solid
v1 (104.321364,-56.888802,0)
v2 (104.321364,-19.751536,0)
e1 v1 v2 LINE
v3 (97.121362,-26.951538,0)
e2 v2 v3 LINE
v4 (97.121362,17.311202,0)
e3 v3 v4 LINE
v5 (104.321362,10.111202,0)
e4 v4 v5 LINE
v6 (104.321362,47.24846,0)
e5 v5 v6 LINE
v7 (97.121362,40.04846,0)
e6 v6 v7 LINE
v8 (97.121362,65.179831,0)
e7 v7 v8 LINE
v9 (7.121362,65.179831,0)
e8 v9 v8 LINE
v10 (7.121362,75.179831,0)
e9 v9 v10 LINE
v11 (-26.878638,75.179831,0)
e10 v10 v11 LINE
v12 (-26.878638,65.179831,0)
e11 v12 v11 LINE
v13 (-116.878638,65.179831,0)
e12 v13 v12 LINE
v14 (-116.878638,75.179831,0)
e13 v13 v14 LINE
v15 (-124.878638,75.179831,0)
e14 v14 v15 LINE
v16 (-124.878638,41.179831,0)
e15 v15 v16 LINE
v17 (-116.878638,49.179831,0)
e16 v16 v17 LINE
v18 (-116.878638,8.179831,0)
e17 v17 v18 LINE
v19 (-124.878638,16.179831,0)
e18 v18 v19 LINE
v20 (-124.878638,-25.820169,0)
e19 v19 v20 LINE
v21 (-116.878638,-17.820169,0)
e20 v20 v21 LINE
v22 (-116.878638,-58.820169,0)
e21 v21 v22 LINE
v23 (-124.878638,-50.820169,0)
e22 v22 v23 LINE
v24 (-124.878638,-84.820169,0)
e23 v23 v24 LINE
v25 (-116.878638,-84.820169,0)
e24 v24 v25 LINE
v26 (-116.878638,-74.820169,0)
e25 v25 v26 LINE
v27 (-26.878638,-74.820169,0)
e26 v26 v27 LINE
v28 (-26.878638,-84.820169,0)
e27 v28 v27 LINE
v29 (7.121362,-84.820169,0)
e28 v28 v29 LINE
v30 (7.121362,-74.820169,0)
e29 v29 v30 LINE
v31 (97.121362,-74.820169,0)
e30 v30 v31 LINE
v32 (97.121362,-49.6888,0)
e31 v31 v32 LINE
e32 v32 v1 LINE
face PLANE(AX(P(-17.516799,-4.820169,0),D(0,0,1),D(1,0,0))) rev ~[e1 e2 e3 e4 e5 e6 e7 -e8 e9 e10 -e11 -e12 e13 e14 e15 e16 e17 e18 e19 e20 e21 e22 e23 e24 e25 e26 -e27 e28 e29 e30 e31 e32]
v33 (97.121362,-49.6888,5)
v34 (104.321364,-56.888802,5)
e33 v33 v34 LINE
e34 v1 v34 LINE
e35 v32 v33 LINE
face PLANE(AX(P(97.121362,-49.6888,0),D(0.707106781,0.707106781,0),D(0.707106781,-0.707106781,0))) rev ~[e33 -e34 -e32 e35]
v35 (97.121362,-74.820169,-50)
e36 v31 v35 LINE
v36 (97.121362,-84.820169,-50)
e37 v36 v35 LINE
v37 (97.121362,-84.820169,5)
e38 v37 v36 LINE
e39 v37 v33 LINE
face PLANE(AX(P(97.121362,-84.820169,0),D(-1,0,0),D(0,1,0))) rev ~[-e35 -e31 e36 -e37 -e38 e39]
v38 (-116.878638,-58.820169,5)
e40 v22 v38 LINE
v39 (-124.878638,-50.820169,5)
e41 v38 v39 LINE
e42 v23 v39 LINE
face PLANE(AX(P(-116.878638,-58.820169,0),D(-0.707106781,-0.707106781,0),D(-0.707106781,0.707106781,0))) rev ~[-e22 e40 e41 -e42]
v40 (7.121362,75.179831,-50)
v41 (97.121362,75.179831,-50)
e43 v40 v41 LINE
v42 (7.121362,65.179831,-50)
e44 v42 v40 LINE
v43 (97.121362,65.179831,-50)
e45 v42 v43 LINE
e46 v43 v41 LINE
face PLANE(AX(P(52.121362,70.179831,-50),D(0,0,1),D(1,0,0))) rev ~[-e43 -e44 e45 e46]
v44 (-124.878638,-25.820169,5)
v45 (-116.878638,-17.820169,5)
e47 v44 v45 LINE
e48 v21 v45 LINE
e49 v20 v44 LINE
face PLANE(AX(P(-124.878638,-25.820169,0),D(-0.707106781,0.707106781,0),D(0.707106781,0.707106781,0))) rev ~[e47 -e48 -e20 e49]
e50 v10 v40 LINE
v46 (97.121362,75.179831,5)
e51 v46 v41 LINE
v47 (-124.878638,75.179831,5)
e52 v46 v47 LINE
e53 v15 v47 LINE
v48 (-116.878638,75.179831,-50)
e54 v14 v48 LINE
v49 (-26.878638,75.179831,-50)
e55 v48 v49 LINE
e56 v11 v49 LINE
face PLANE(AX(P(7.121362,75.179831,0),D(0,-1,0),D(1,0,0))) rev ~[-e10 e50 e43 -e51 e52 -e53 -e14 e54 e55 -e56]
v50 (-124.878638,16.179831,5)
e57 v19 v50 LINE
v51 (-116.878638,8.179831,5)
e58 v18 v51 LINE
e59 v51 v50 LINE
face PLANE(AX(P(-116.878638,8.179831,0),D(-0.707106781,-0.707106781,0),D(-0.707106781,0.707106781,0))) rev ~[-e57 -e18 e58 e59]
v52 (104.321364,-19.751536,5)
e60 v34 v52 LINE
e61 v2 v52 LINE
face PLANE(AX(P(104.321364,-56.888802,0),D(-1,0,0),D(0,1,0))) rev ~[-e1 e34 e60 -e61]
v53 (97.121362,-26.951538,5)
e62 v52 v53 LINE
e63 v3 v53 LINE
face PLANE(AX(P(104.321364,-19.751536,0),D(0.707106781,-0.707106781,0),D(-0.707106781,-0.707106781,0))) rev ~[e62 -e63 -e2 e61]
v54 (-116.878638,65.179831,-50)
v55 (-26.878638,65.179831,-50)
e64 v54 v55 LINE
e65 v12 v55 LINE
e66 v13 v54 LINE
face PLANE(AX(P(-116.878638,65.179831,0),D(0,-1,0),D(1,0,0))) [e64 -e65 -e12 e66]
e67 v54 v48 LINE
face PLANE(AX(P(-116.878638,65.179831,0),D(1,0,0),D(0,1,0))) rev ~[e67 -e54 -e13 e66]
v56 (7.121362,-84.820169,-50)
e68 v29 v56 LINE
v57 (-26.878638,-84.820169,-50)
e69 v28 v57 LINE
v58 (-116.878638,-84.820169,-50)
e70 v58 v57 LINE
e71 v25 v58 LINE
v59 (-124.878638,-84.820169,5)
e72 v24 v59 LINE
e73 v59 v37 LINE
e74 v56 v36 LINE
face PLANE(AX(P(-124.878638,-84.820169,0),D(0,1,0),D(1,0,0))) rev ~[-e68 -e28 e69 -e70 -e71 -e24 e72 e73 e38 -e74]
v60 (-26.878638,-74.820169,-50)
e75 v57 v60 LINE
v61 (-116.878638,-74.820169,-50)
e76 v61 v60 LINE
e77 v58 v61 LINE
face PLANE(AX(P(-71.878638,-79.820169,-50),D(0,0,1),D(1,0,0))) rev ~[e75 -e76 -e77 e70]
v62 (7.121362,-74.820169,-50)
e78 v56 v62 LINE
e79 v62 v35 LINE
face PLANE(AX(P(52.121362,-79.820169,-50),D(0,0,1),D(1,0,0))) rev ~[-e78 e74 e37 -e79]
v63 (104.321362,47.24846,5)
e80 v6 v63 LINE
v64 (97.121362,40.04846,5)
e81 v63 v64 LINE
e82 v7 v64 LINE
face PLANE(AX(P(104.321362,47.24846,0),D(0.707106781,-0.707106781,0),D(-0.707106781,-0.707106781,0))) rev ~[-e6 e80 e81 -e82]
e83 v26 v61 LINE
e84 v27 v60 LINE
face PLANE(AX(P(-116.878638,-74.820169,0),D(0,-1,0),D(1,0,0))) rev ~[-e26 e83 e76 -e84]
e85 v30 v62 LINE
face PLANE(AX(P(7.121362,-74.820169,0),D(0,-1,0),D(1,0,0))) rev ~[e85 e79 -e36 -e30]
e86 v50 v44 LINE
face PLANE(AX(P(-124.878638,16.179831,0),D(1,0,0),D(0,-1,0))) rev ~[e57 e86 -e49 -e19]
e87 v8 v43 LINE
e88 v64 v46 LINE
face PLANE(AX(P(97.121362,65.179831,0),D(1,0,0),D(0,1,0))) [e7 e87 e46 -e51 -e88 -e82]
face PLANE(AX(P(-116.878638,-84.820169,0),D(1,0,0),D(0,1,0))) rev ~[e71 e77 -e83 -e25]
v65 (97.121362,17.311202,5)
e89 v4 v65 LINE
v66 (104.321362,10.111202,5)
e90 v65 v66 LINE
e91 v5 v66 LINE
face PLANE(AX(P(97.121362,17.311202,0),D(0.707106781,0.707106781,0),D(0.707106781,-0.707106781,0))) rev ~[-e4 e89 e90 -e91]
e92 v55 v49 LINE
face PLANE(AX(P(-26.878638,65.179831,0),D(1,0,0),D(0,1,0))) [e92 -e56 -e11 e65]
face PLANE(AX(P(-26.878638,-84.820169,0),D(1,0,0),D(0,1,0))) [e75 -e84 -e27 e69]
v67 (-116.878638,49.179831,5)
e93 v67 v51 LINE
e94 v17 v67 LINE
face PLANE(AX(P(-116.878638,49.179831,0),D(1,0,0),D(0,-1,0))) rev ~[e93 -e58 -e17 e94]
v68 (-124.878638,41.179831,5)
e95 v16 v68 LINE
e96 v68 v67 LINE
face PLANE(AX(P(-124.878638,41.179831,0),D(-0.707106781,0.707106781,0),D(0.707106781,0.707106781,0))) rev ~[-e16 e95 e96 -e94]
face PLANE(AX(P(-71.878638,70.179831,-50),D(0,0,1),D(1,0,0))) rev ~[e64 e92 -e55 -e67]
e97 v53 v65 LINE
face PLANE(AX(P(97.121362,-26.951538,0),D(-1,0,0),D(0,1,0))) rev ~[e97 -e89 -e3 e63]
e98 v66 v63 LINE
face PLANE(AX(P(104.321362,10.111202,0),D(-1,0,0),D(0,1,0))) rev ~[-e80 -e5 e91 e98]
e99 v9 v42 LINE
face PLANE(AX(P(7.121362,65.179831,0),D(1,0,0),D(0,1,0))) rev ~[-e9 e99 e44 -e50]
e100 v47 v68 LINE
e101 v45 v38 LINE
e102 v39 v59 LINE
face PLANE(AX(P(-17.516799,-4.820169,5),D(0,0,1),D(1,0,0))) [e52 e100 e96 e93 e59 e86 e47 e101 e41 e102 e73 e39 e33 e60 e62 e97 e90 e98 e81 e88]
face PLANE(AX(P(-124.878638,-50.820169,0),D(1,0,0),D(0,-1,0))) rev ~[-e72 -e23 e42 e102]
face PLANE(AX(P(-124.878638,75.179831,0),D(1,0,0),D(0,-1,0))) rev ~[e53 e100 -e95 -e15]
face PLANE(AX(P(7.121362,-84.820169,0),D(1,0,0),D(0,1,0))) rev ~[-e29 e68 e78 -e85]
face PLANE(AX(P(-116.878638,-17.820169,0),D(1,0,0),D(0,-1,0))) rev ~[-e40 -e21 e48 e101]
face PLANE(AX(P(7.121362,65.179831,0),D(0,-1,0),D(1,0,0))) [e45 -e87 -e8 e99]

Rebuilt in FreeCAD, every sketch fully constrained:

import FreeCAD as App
import Part
import Sketcher
from FreeCAD import Vector
Q = App.Units.Quantity

doc = App.newDocument("Part")
body = doc.addObject("PartDesign::Body", "Body")

# Sketch on XY plane
sketch1 = doc.addObject("Sketcher::SketchObject", "Sketch")
body.addObject(sketch1)
sketch1.AttachmentSupport = (doc.XY_Plane, [""])
sketch1.MapMode = "FlatFace"
sketch1.addGeometry([
    Part.LineSegment(Vector(-125, 75, 0), Vector(-125, 41, 0)),  # 0
    Part.LineSegment(Vector(-125, 41, 0), Vector(-117, 49, 0)),  # 1
    Part.LineSegment(Vector(-117, 49, 0), Vector(-117, 8, 0)),  # 2
    Part.LineSegment(Vector(-117, 8, 0), Vector(-125, 16, 0)),  # 3
    Part.LineSegment(Vector(-125, 16, 0), Vector(-125, -26, 0)),  # 4
    Part.LineSegment(Vector(-125, -26, 0), Vector(-117, -18, 0)),  # 5
    Part.LineSegment(Vector(-117, -18, 0), Vector(-117, -59, 0)),  # 6
    Part.LineSegment(Vector(-117, -59, 0), Vector(-125, -51, 0)),  # 7
    Part.LineSegment(Vector(-125, -51, 0), Vector(-125, -85, 0)),  # 8
    Part.LineSegment(Vector(-125, -85, 0), Vector(97, -85, 0)),  # 9
    Part.LineSegment(Vector(97, -85, 0), Vector(97, -50, 0)),  # 10
    Part.LineSegment(Vector(97, -50, 0), Vector(104, -57, 0)),  # 11
    Part.LineSegment(Vector(104, -57, 0), Vector(104, -20, 0)),  # 12
    Part.LineSegment(Vector(104, -20, 0), Vector(97, -27, 0)),  # 13
    Part.LineSegment(Vector(97, -27, 0), Vector(97, 17, 0)),  # 14
    Part.LineSegment(Vector(97, 17, 0), Vector(104, 10, 0)),  # 15
    Part.LineSegment(Vector(104, 10, 0), Vector(104, 47, 0)),  # 16
    Part.LineSegment(Vector(104, 47, 0), Vector(97, 40, 0)),  # 17
    Part.LineSegment(Vector(97, 40, 0), Vector(97, 75, 0)),  # 18
    Part.LineSegment(Vector(97, 75, 0), Vector(-125, 75, 0)),  # 19
], False)
sketch1.addConstraint([
    Sketcher.Constraint("Coincident", 0, 2, 1, 1),
    Sketcher.Constraint("Coincident", 1, 2, 2, 1),
    Sketcher.Constraint("Coincident", 2, 2, 3, 1),
    Sketcher.Constraint("Coincident", 3, 2, 4, 1),
    Sketcher.Constraint("Coincident", 4, 2, 5, 1),
    Sketcher.Constraint("Coincident", 5, 2, 6, 1),
    Sketcher.Constraint("Coincident", 6, 2, 7, 1),
    Sketcher.Constraint("Coincident", 7, 2, 8, 1),
    Sketcher.Constraint("Coincident", 8, 2, 9, 1),
    Sketcher.Constraint("Coincident", 9, 2, 10, 1),
    Sketcher.Constraint("Coincident", 10, 2, 11, 1),
    Sketcher.Constraint("Coincident", 11, 2, 12, 1),
    Sketcher.Constraint("Coincident", 12, 2, 13, 1),
    Sketcher.Constraint("Coincident", 13, 2, 14, 1),
    Sketcher.Constraint("Coincident", 14, 2, 15, 1),
    Sketcher.Constraint("Coincident", 15, 2, 16, 1),
    Sketcher.Constraint("Coincident", 16, 2, 17, 1),
    Sketcher.Constraint("Coincident", 17, 2, 18, 1),
    Sketcher.Constraint("Coincident", 18, 2, 19, 1),
    Sketcher.Constraint("Coincident", 19, 2, 0, 1),
    Sketcher.Constraint("Vertical", 0),
    Sketcher.Constraint("Vertical", 2),
    Sketcher.Constraint("Vertical", 4),
    Sketcher.Constraint("Vertical", 6),
    Sketcher.Constraint("Vertical", 8),
    Sketcher.Constraint("Horizontal", 9),
    Sketcher.Constraint("Vertical", 10),
    Sketcher.Constraint("Vertical", 12),
    Sketcher.Constraint("Vertical", 14),
    Sketcher.Constraint("Vertical", 16),
    Sketcher.Constraint("Vertical", 18),
    Sketcher.Constraint("Horizontal", 19),
    Sketcher.Constraint("Perpendicular", 1, 3),
    Sketcher.Constraint("Perpendicular", 3, 5),
    Sketcher.Constraint("Perpendicular", 5, 7),
    Sketcher.Constraint("Parallel", 7, 11),
    Sketcher.Constraint("Perpendicular", 11, 13),
    Sketcher.Constraint("Perpendicular", 13, 15),
    Sketcher.Constraint("Perpendicular", 15, 17),
    Sketcher.Constraint("Vertical", 0, 2, 3, 2),
    Sketcher.Constraint("Vertical", 2, 2, 5, 2),
    Sketcher.Constraint("Vertical", 4, 2, 7, 2),
    Sketcher.Constraint("Vertical", 10, 2, 13, 2),
    Sketcher.Constraint("Vertical", 14, 2, 17, 2),
    Sketcher.Constraint("Equal", 2, 6),
    Sketcher.Constraint("Equal", 0, 8),
    Sketcher.Constraint("Equal", 10, 18),
    Sketcher.Constraint("Equal", 1, 3),
    Sketcher.Constraint("DistanceX", 9, 1, 9, 2, Q("222 mm")),
    Sketcher.Constraint("DistanceY", 0, 2, 0, 1, Q("34 mm")),
    Sketcher.Constraint("DistanceY", 2, 2, 2, 1, Q("41 mm")),
    Sketcher.Constraint("DistanceY", 4, 2, 4, 1, Q("42 mm")),
    Sketcher.Constraint("DistanceX", 0, 2, 1, 2, Q("8 mm")),
    Sketcher.Constraint("DistanceY", 10, 2, 14, 2, Q("67.000002 mm")),
    Sketcher.Constraint("DistanceY", 13, 2, 17, 2, Q("66.999998 mm")),
    Sketcher.Constraint("DistanceX", 10, 2, 11, 2, Q("7.200002 mm")),
    Sketcher.Constraint("DistanceX", 14, 2, 15, 2, Q("7.2 mm")),
    Sketcher.Constraint("DistanceY", 10, 1, 10, 2, Q("35.131369 mm")),
    Sketcher.Constraint("DistanceY", 10, 2, -1, 1, Q("49.6888 mm")),
    Sketcher.Constraint("DistanceX", -1, 1, 15, 2, Q("104.321362 mm")),
])
pad1 = doc.addObject("PartDesign::Pad", "Pad")
body.addObject(pad1)
pad1.Profile = sketch1
pad1.Length = 5

# Sketch on XY plane
sketch2 = doc.addObject("Sketcher::SketchObject", "Sketch001")
body.addObject(sketch2)
sketch2.AttachmentSupport = (doc.XY_Plane, [""])
sketch2.MapMode = "FlatFace"
sketch2.addGeometry([
    Part.LineSegment(Vector(7, 75, 0), Vector(7, 65, 0)),  # 0
    Part.LineSegment(Vector(7, 65, 0), Vector(97, 65, 0)),  # 1
    Part.LineSegment(Vector(97, 65, 0), Vector(97, 75, 0)),  # 2
    Part.LineSegment(Vector(97, 75, 0), Vector(7, 75, 0)),  # 3
    Part.LineSegment(Vector(-117, 75, 0), Vector(-117, 65, 0)),  # 4
    Part.LineSegment(Vector(-117, 65, 0), Vector(-27, 65, 0)),  # 5
    Part.LineSegment(Vector(-27, 65, 0), Vector(-27, 75, 0)),  # 6
    Part.LineSegment(Vector(-27, 75, 0), Vector(-117, 75, 0)),  # 7
    Part.LineSegment(Vector(-117, -75, 0), Vector(-117, -85, 0)),  # 8
    Part.LineSegment(Vector(-117, -85, 0), Vector(-27, -85, 0)),  # 9
    Part.LineSegment(Vector(-27, -85, 0), Vector(-27, -75, 0)),  # 10
    Part.LineSegment(Vector(-27, -75, 0), Vector(-117, -75, 0)),  # 11
    Part.LineSegment(Vector(7, -75, 0), Vector(7, -85, 0)),  # 12
    Part.LineSegment(Vector(7, -85, 0), Vector(97, -85, 0)),  # 13
    Part.LineSegment(Vector(97, -85, 0), Vector(97, -75, 0)),  # 14
    Part.LineSegment(Vector(97, -75, 0), Vector(7, -75, 0)),  # 15
], False)
sketch2.addConstraint([
    Sketcher.Constraint("Coincident", 0, 2, 1, 1),
    Sketcher.Constraint("Coincident", 1, 2, 2, 1),
    Sketcher.Constraint("Coincident", 2, 2, 3, 1),
    Sketcher.Constraint("Coincident", 3, 2, 0, 1),
    Sketcher.Constraint("Coincident", 4, 2, 5, 1),
    Sketcher.Constraint("Coincident", 5, 2, 6, 1),
    Sketcher.Constraint("Coincident", 6, 2, 7, 1),
    Sketcher.Constraint("Coincident", 7, 2, 4, 1),
    Sketcher.Constraint("Coincident", 8, 2, 9, 1),
    Sketcher.Constraint("Coincident", 9, 2, 10, 1),
    Sketcher.Constraint("Coincident", 10, 2, 11, 1),
    Sketcher.Constraint("Coincident", 11, 2, 8, 1),
    Sketcher.Constraint("Coincident", 12, 2, 13, 1),
    Sketcher.Constraint("Coincident", 13, 2, 14, 1),
    Sketcher.Constraint("Coincident", 14, 2, 15, 1),
    Sketcher.Constraint("Coincident", 15, 2, 12, 1),
    Sketcher.Constraint("Vertical", 0),
    Sketcher.Constraint("Horizontal", 1),
    Sketcher.Constraint("Vertical", 2),
    Sketcher.Constraint("Horizontal", 3),
    Sketcher.Constraint("Vertical", 4),
    Sketcher.Constraint("Horizontal", 5),
    Sketcher.Constraint("Vertical", 6),
    Sketcher.Constraint("Horizontal", 7),
    Sketcher.Constraint("Vertical", 8),
    Sketcher.Constraint("Horizontal", 9),
    Sketcher.Constraint("Vertical", 10),
    Sketcher.Constraint("Horizontal", 11),
    Sketcher.Constraint("Vertical", 12),
    Sketcher.Constraint("Horizontal", 13),
    Sketcher.Constraint("Vertical", 14),
    Sketcher.Constraint("Horizontal", 15),
    Sketcher.Constraint("Horizontal", 1, 2, 4, 2),
    Sketcher.Constraint("Horizontal", 3, 2, 6, 2),
    Sketcher.Constraint("Horizontal", 9, 2, 12, 2),
    Sketcher.Constraint("Horizontal", 11, 2, 14, 2),
    Sketcher.Constraint("Vertical", 7, 2, 8, 2),
    Sketcher.Constraint("Vertical", 6, 2, 9, 2),
    Sketcher.Constraint("Vertical", 3, 2, 12, 2),
    Sketcher.Constraint("Vertical", 2, 2, 13, 2),
    Sketcher.Constraint("Equal", 3, 5),
    Sketcher.Constraint("Equal", 6, 8),
    Sketcher.Constraint("DistanceX", 1, 1, 1, 2, Q("90 mm")),
    Sketcher.Constraint("DistanceY", 0, 2, 0, 1, Q("10 mm")),
    Sketcher.Constraint("DistanceX", 4, 2, 0, 2, Q("124 mm")),
    Sketcher.Constraint("DistanceY", 8, 2, 4, 2, Q("150 mm")),
    Sketcher.Constraint("DistanceY", -1, 1, 0, 2, Q("65.179831 mm")),
    Sketcher.Constraint("DistanceX", -1, 1, 0, 2, Q("7.121362 mm")),
])
pad2 = doc.addObject("PartDesign::Pad", "Pad001")
body.addObject(pad2)
pad2.Profile = sketch2
pad2.Length = 50
pad2.Reversed = True

doc.recompute()
